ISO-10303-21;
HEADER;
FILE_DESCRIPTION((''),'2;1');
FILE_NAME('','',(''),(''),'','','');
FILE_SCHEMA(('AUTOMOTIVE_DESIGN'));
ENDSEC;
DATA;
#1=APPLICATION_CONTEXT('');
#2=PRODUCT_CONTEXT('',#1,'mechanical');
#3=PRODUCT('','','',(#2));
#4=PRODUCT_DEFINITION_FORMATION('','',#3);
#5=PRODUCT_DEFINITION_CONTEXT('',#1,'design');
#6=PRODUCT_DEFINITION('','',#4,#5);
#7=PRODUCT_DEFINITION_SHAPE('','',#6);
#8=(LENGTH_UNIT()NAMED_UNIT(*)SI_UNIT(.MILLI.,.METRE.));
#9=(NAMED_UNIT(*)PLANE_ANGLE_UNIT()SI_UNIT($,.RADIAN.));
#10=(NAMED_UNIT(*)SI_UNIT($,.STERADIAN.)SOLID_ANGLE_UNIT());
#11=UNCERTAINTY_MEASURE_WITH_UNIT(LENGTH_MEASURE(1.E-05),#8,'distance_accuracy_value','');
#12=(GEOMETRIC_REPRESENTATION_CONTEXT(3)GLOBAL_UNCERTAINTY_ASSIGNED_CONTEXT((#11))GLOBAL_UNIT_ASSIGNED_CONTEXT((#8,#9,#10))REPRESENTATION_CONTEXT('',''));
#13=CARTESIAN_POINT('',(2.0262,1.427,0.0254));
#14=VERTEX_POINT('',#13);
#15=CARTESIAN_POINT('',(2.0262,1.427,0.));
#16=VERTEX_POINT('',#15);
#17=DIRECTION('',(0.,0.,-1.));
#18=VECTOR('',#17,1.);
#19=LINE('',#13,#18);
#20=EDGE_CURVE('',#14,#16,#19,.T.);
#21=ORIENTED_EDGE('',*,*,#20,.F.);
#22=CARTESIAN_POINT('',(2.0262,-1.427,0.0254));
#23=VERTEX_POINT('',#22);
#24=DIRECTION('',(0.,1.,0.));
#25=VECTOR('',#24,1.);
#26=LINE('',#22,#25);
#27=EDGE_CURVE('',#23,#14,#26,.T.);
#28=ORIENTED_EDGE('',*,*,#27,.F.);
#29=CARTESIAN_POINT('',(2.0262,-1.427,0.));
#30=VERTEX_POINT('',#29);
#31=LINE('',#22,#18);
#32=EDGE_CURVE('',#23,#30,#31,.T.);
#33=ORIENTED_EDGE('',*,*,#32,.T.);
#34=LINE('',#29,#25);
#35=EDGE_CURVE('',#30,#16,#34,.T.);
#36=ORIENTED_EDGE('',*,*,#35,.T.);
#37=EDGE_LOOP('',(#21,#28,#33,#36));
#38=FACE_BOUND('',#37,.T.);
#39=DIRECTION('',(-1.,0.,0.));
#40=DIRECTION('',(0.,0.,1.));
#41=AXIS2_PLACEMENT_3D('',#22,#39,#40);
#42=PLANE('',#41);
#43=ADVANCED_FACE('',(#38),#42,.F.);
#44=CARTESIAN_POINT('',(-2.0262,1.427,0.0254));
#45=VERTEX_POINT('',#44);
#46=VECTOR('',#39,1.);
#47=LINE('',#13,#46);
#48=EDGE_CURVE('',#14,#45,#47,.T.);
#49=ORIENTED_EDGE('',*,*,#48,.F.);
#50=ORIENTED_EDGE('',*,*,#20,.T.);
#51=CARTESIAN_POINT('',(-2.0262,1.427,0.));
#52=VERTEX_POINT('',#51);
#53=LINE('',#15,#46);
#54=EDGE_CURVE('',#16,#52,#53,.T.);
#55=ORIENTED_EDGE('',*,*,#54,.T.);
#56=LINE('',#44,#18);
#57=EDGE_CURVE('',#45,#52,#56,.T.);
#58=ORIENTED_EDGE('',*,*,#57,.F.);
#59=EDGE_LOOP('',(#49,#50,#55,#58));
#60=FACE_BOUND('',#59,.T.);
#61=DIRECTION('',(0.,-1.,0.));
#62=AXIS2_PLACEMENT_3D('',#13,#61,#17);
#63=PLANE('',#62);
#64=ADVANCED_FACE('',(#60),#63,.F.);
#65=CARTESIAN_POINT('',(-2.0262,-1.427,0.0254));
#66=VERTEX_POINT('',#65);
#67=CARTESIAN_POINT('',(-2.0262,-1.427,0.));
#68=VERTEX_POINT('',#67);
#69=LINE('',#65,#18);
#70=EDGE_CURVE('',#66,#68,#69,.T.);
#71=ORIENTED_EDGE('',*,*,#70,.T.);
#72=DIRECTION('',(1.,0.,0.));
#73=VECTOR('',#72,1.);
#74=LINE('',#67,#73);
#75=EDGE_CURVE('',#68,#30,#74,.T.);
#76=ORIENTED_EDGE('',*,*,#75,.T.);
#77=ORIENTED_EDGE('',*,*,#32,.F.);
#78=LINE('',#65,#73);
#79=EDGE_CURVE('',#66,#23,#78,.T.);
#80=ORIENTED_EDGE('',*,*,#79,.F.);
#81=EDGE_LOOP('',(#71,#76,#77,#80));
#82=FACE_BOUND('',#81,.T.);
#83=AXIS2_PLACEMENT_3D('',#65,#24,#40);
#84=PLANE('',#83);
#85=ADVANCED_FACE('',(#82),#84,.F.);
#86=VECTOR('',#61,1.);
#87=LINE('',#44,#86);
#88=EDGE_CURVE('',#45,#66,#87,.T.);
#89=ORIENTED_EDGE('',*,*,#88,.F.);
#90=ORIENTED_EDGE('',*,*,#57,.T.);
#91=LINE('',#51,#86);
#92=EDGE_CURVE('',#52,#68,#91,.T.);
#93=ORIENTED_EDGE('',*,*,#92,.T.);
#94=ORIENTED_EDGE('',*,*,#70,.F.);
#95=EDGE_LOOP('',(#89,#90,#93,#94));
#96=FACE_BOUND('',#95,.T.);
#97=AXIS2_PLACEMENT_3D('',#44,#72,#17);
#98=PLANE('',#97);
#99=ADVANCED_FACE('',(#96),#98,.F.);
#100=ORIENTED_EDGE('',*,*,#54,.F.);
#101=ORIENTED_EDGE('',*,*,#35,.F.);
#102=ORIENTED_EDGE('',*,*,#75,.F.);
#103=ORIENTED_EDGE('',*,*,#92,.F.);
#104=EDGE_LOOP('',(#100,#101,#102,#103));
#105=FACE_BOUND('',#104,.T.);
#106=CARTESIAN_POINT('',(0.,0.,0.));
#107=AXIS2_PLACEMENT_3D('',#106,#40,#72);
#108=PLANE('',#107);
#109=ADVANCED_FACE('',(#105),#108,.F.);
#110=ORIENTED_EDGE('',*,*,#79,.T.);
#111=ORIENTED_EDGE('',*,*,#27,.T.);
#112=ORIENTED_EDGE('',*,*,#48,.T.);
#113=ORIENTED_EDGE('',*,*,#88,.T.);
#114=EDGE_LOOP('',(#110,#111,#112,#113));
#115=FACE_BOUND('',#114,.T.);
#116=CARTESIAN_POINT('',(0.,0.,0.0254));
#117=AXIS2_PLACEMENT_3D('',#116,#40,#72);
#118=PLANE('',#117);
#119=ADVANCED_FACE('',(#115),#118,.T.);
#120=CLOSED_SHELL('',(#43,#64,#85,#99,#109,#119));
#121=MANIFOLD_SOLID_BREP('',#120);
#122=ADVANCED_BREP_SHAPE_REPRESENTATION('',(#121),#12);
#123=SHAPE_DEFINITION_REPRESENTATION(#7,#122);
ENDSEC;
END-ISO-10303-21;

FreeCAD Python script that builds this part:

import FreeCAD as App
import Part
import Sketcher
from FreeCAD import Vector
Q = App.Units.Quantity

doc = App.newDocument("Part")
body = doc.addObject("PartDesign::Body", "Body")

# Sketch on XY plane
sketch1 = body.newObject("Sketcher::SketchObject", "Sketch")
sketch1.AttachmentSupport = (doc.getObject("XY_Plane"), [""])
sketch1.MapMode = "FlatFace"
sketch1.addGeometry(Part.LineSegment(Vector(-2, 1.4, 0), Vector(-2, -1.4, 0)), False)
sketch1.addGeometry(Part.LineSegment(Vector(-2, -1.4, 0), Vector(2, -1.4, 0)), False)
sketch1.addGeometry(Part.LineSegment(Vector(2, -1.4, 0), Vector(2, 1.4, 0)), False)
sketch1.addGeometry(Part.LineSegment(Vector(2, 1.4, 0), Vector(-2, 1.4, 0)), False)
sketch1.addConstraint(Sketcher.Constraint("Coincident", 0, 2, 1, 1))
sketch1.addConstraint(Sketcher.Constraint("Coincident", 1, 2, 2, 1))
sketch1.addConstraint(Sketcher.Constraint("Coincident", 2, 2, 3, 1))
sketch1.addConstraint(Sketcher.Constraint("Coincident", 3, 2, 0, 1))
sketch1.addConstraint(Sketcher.Constraint("Vertical", 0))
sketch1.addConstraint(Sketcher.Constraint("Horizontal", 1))
sketch1.addConstraint(Sketcher.Constraint("Vertical", 2))
sketch1.addConstraint(Sketcher.Constraint("Horizontal", 3))
sketch1.addConstraint(Sketcher.Constraint("Symmetric", 0, 2, 2, 2, -1, 1))
sketch1.addConstraint(Sketcher.Constraint("DistanceX", 1, 1, 1, 2, Q("4.0524 mm")))
sketch1.addConstraint(Sketcher.Constraint("DistanceY", 0, 2, 0, 1, Q("2.854 mm")))
pad1 = body.newObject("PartDesign::Pad", "Pad")
pad1.Profile = sketch1
pad1.Length = Q("0.001 in")

doc.recompute()
